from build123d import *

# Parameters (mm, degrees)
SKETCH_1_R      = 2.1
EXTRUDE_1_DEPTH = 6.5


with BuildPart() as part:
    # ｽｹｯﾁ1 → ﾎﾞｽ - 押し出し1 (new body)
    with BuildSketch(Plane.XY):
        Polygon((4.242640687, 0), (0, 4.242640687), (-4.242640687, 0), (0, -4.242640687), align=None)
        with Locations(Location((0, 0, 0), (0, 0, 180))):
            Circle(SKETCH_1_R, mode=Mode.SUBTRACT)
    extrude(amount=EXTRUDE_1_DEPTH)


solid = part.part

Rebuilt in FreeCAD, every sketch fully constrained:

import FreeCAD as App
import Part
import Sketcher

V = App.Vector
Q = App.Units.Quantity

doc = App.newDocument("Part")
params = doc.addObject("Spreadsheet::Sheet", "Params")
for row, (alias, value) in enumerate([
    ("sketch1_diameter", "4.2 mm"),
    ("sketch1_length", "6 mm"),
    ("pad1_length", "6.5 mm"),
], start=1):
    params.set(f"A{row}", alias)
    params.set(f"B{row}", "=" + value)
    params.setAlias(f"B{row}", alias)

body = doc.addObject("PartDesign::Body", "Body")

sketch1 = body.newObject("Sketcher::SketchObject", "Sketch")
sketch1.AttachmentSupport = (doc.getObject("XY_Plane"), [""])
sketch1.MapMode = "FlatFace"
sketch1.addGeometry([
    Part.LineSegment(V(4.2, 0, 0), V(0, 4.2, 0)),
    Part.LineSegment(V(0, 4.2, 0), V(-4.2, 0, 0)),
    Part.LineSegment(V(-4.2, 0, 0), V(0, -4.2, 0)),
    Part.LineSegment(V(0, -4.2, 0), V(4.2, 0, 0)),
    Part.Circle(V(0, 0, 0), V(0, 0, 1), 2.1),
], False)
sketch1.addConstraint([
    Sketcher.Constraint("Coincident", 0, 2, 1, 1),
    Sketcher.Constraint("Coincident", 1, 2, 2, 1),
    Sketcher.Constraint("Coincident", 2, 2, 3, 1),
    Sketcher.Constraint("Coincident", 3, 2, 0, 1),
    Sketcher.Constraint("Coincident", 4, 3, -1, 1),
    Sketcher.Constraint("Symmetric", 0, 2, 2, 2, -1, 1),
    Sketcher.Constraint("Symmetric", 1, 2, 3, 2, -1, 1),
    Sketcher.Constraint("PointOnObject", 0, 2, -2),
    Sketcher.Constraint("PointOnObject", 1, 2, -1),
    Sketcher.Constraint("Perpendicular", 0, 1),
    Sketcher.Constraint("Diameter", 4, Q("4.2 mm")),
    Sketcher.Constraint("Distance", 0, Q("6 mm")),
])
sketch1.setExpression("Constraints[10]", "Params.sketch1_diameter")
sketch1.setExpression("Constraints[11]", "Params.sketch1_length")
pad1 = body.newObject("PartDesign::Pad", "Pad")
pad1.Profile = sketch1
pad1.setExpression("Length", "Params.pad1_length")

doc.recompute()
